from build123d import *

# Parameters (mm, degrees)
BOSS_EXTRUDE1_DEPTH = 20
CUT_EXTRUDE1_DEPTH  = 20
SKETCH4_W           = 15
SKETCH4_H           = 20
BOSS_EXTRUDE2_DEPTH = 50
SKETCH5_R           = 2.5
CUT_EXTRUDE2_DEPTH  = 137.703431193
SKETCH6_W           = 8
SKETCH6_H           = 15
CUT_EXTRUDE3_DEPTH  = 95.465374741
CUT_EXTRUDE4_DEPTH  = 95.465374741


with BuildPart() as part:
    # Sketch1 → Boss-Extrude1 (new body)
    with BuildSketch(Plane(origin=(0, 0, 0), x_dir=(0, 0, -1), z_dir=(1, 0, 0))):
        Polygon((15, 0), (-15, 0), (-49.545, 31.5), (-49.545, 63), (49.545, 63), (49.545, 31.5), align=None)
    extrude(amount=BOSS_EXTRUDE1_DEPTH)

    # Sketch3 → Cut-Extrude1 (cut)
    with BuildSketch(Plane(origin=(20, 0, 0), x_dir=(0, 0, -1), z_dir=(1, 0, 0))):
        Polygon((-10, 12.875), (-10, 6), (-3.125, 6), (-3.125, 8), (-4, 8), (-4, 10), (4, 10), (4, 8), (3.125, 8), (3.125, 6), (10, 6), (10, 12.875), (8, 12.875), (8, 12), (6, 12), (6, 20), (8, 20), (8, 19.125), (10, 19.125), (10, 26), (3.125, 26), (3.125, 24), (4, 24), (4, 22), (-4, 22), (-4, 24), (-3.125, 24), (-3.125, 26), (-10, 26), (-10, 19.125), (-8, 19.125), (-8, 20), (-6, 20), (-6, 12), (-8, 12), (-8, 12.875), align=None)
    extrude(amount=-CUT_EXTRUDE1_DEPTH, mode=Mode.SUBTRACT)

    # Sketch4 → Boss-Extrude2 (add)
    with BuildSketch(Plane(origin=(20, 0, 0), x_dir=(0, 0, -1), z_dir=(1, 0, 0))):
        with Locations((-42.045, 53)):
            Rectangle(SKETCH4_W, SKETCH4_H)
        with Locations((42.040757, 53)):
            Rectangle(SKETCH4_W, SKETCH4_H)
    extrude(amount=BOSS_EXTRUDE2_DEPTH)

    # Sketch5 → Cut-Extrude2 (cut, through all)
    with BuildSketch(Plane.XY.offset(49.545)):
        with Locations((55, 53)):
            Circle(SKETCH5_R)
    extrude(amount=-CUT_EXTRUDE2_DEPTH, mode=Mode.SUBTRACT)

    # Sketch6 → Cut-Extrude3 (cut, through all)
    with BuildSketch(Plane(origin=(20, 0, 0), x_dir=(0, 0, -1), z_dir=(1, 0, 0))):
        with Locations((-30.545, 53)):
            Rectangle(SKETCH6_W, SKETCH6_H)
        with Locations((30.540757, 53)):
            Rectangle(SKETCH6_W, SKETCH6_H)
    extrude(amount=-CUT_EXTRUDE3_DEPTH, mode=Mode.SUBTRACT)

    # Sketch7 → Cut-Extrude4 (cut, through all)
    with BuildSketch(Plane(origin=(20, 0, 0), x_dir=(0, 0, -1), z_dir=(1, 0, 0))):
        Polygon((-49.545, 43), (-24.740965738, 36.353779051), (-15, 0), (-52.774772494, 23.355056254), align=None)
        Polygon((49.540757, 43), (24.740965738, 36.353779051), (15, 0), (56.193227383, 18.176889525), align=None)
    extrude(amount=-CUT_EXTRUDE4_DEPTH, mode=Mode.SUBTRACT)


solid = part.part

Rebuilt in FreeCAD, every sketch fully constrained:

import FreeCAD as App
import Part
import Sketcher
Q = App.Units.Quantity

doc = App.newDocument("Part")
params = doc.addObject("Spreadsheet::Sheet", "Params")
for row, (alias, value) in enumerate([
    ("sketch1_height", "30 mm"),
    ("sketch1_width", "31.5 mm"),
    ("sketch1_height2", "99.09 mm"),
    ("pad1_length", "20 mm"),
    ("sketch2_width", "2 mm"),
    ("sketch2_width2", "8 mm"),
    ("pocket1_length", "20 mm"),
    ("sketch3_width", "20 mm"),
    ("sketch3_height", "15 mm"),
    ("pad2_length", "50 mm"),
    ("sketch4_diameter", "5 mm"),
    ("sketch5_width", "15 mm"),
    ("sketch5_height", "8 mm"),
], start=1):
    params.set(f"A{row}", alias)
    params.set(f"B{row}", "=" + value)
    params.setAlias(f"B{row}", alias)

body = doc.addObject("PartDesign::Body", "Body")

sketch1 = body.newObject("Sketcher::SketchObject", "Sketch")
sketch1.AttachmentSupport = (doc.getObject("YZ_Plane"), [""])
sketch1.MapMode = "FlatFace"
sketch1.addGeometry([
    Part.LineSegment(App.Vector(0, 15, 0), App.Vector(0, -15, 0)),
    Part.LineSegment(App.Vector(0, -15, 0), App.Vector(32, -50, 0)),
    Part.LineSegment(App.Vector(32, -50, 0), App.Vector(63, -50, 0)),
    Part.LineSegment(App.Vector(63, -50, 0), App.Vector(63, 50, 0)),
    Part.LineSegment(App.Vector(63, 50, 0), App.Vector(32, 50, 0)),
    Part.LineSegment(App.Vector(32, 50, 0), App.Vector(0, 15, 0)),
], False)
sketch1.addConstraint([
    Sketcher.Constraint("Coincident", 0, 2, 1, 1),
    Sketcher.Constraint("Coincident", 1, 2, 2, 1),
    Sketcher.Constraint("Coincident", 2, 2, 3, 1),
    Sketcher.Constraint("Coincident", 3, 2, 4, 1),
    Sketcher.Constraint("Coincident", 4, 2, 5, 1),
    Sketcher.Constraint("Coincident", 5, 2, 0, 1),
    Sketcher.Constraint("Vertical", 0),
    Sketcher.Constraint("Horizontal", 2),
    Sketcher.Constraint("Vertical", 3),
    Sketcher.Constraint("Horizontal", 4),
    Sketcher.Constraint("Symmetric", 0, 2, 5, 2, -1, 1),
    Sketcher.Constraint("Symmetric", 1, 2, 4, 2, -1),
    Sketcher.Constraint("DistanceY", 0, 2, 0, 1, Q("30 mm")),
    Sketcher.Constraint("DistanceX", 2, 1, 2, 2, Q("31.5 mm")),
    Sketcher.Constraint("DistanceX", -1, 1, 2, 2, Q("63 mm")),
    Sketcher.Constraint("DistanceY", 3, 1, 3, 2, Q("99.09 mm")),
])
sketch1.setExpression("Constraints[12]", "Params.sketch1_height")
sketch1.setExpression("Constraints[13]", "Params.sketch1_width")
sketch1.setExpression("Constraints[15]", "Params.sketch1_height2")
pad1 = body.newObject("PartDesign::Pad", "Pad")
pad1.Profile = sketch1
pad1.setExpression("Length", "Params.pad1_length")

sketch2 = body.newObject("Sketcher::SketchObject", "Sketch001")
sketch2.AttachmentSupport = (doc.getObject("YZ_Plane"), [""])
sketch2.MapMode = "FlatFace"
sketch2.AttachmentOffset = App.Placement(App.Vector(0, 0, 20), App.Rotation())
sketch2.addGeometry([
    Part.LineSegment(App.Vector(12.9, 10, 0), App.Vector(6, 10, 0)),
    Part.LineSegment(App.Vector(6, 10, 0), App.Vector(6, 3.1, 0)),
    Part.LineSegment(App.Vector(6, 3.1, 0), App.Vector(8, 3.1, 0)),
    Part.LineSegment(App.Vector(8, 3.1, 0), App.Vector(8, 4, 0)),
    Part.LineSegment(App.Vector(8, 4, 0), App.Vector(10, 4, 0)),
    Part.LineSegment(App.Vector(10, 4, 0), App.Vector(10, -4, 0)),
    Part.LineSegment(App.Vector(10, -4, 0), App.Vector(8, -4, 0)),
    Part.LineSegment(App.Vector(8, -4, 0), App.Vector(8, -3.1, 0)),
    Part.LineSegment(App.Vector(8, -3.1, 0), App.Vector(6, -3.1, 0)),
    Part.LineSegment(App.Vector(6, -3.1, 0), App.Vector(6, -10, 0)),
    Part.LineSegment(App.Vector(6, -10, 0), App.Vector(12.9, -10, 0)),
    Part.LineSegment(App.Vector(12.9, -10, 0), App.Vector(12.9, -8, 0)),
    Part.LineSegment(App.Vector(12.9, -8, 0), App.Vector(12, -8, 0)),
    Part.LineSegment(App.Vector(12, -8, 0), App.Vector(12, -6, 0)),
    Part.LineSegment(App.Vector(12, -6, 0), App.Vector(20, -6, 0)),
    Part.LineSegment(App.Vector(20, -6, 0), App.Vector(20, -8, 0)),
    Part.LineSegment(App.Vector(20, -8, 0), App.Vector(19.1, -8, 0)),
    Part.LineSegment(App.Vector(19.1, -8, 0), App.Vector(19.1, -10, 0)),
    Part.LineSegment(App.Vector(19.1, -10, 0), App.Vector(26, -10, 0)),
    Part.LineSegment(App.Vector(26, -10, 0), App.Vector(26, -3.1, 0)),
    Part.LineSegment(App.Vector(26, -3.1, 0), App.Vector(24, -3.1, 0)),
    Part.LineSegment(App.Vector(24, -3.1, 0), App.Vector(24, -4, 0)),
    Part.LineSegment(App.Vector(24, -4, 0), App.Vector(22, -4, 0)),
    Part.LineSegment(App.Vector(22, -4, 0), App.Vector(22, 4, 0)),
    Part.LineSegment(App.Vector(22, 4, 0), App.Vector(24, 4, 0)),
    Part.LineSegment(App.Vector(24, 4, 0), App.Vector(24, 3.1, 0)),
    Part.LineSegment(App.Vector(24, 3.1, 0), App.Vector(26, 3.1, 0)),
    Part.LineSegment(App.Vector(26, 3.1, 0), App.Vector(26, 10, 0)),
    Part.LineSegment(App.Vector(26, 10, 0), App.Vector(19.1, 10, 0)),
    Part.LineSegment(App.Vector(19.1, 10, 0), App.Vector(19.1, 8, 0)),
    Part.LineSegment(App.Vector(19.1, 8, 0), App.Vector(20, 8, 0)),
    Part.LineSegment(App.Vector(20, 8, 0), App.Vector(20, 6, 0)),
    Part.LineSegment(App.Vector(20, 6, 0), App.Vector(12, 6, 0)),
    Part.LineSegment(App.Vector(12, 6, 0), App.Vector(12, 8, 0)),
    Part.LineSegment(App.Vector(12, 8, 0), App.Vector(12.9, 8, 0)),
    Part.LineSegment(App.Vector(12.9, 8, 0), App.Vector(12.9, 10, 0)),
], False)
sketch2.addConstraint([
    Sketcher.Constraint("Coincident", 0, 2, 1, 1),
    Sketcher.Constraint("Coincident", 1, 2, 2, 1),
    Sketcher.Constraint("Coincident", 2, 2, 3, 1),
    Sketcher.Constraint("Coincident", 3, 2, 4, 1),
    Sketcher.Constraint("Coincident", 4, 2, 5, 1),
    Sketcher.Constraint("Coincident", 5, 2, 6, 1),
    Sketcher.Constraint("Coincident", 6, 2, 7, 1),
    Sketcher.Constraint("Coincident", 7, 2, 8, 1),
    Sketcher.Constraint("Coincident", 8, 2, 9, 1),
    Sketcher.Constraint("Coincident", 9, 2, 10, 1),
    Sketcher.Constraint("Coincident", 10, 2, 11, 1),
    Sketcher.Constraint("Coincident", 11, 2, 12, 1),
    Sketcher.Constraint("Coincident", 12, 2, 13, 1),
    Sketcher.Constraint("Coincident", 13, 2, 14, 1),
    Sketcher.Constraint("Coincident", 14, 2, 15, 1),
    Sketcher.Constraint("Coincident", 15, 2, 16, 1),
    Sketcher.Constraint("Coincident", 16, 2, 17, 1),
    Sketcher.Constraint("Coincident", 17, 2, 18, 1),
    Sketcher.Constraint("Coincident", 18, 2, 19, 1),
    Sketcher.Constraint("Coincident", 19, 2, 20, 1),
    Sketcher.Constraint("Coincident", 20, 2, 21, 1),
    Sketcher.Constraint("Coincident", 21, 2, 22, 1),
    Sketcher.Constraint("Coincident", 22, 2, 23, 1),
    Sketcher.Constraint("Coincident", 23, 2, 24, 1),
    Sketcher.Constraint("Coincident", 24, 2, 25, 1),
    Sketcher.Constraint("Coincident", 25, 2, 26, 1),
    Sketcher.Constraint("Coincident", 26, 2, 27, 1),
    Sketcher.Constraint("Coincident", 27, 2, 28, 1),
    Sketcher.Constraint("Coincident", 28, 2, 29, 1),
    Sketcher.Constraint("Coincident", 29, 2, 30, 1),
    Sketcher.Constraint("Coincident", 30, 2, 31, 1),
    Sketcher.Constraint("Coincident", 31, 2, 32, 1),
    Sketcher.Constraint("Coincident", 32, 2, 33, 1),
    Sketcher.Constraint("Coincident", 33, 2, 34, 1),
    Sketcher.Constraint("Coincident", 34, 2, 35, 1),
    Sketcher.Constraint("Coincident", 35, 2, 0, 1),
    Sketcher.Constraint("Horizontal", 0),
    Sketcher.Constraint("Vertical", 1),
    Sketcher.Constraint("Horizontal", 2),
    Sketcher.Constraint("Vertical", 3),
    Sketcher.Constraint("Horizontal", 4),
    Sketcher.Constraint("Vertical", 5),
    Sketcher.Constraint("Horizontal", 6),
    Sketcher.Constraint("Vertical", 7),
    Sketcher.Constraint("Horizontal", 8),
    Sketcher.Constraint("Vertical", 9),
    Sketcher.Constraint("Horizontal", 10),
    Sketcher.Constraint("Vertical", 11),
    Sketcher.Constraint("Horizontal", 12),
    Sketcher.Constraint("Vertical", 13),
    Sketcher.Constraint("Horizontal", 14),
    Sketcher.Constraint("Vertical", 15),
    Sketcher.Constraint("Horizontal", 16),
    Sketcher.Constraint("Vertical", 17),
    Sketcher.Constraint("Horizontal", 18),
    Sketcher.Constraint("Vertical", 19),
    Sketcher.Constraint("Horizontal", 20),
    Sketcher.Constraint("Vertical", 21),
    Sketcher.Constraint("Horizontal", 22),
    Sketcher.Constraint("Vertical", 23),
    Sketcher.Constraint("Horizontal", 24),
    Sketcher.Constraint("Vertical", 25),
    Sketcher.Constraint("Horizontal", 26),
    Sketcher.Constraint("Vertical", 27),
    Sketcher.Constraint("Horizontal", 28),
    Sketcher.Constraint("Vertical", 29),
    Sketcher.Constraint("Horizontal", 30),
    Sketcher.Constraint("Vertical", 31),
    Sketcher.Constraint("Horizontal", 32),
    Sketcher.Constraint("Vertical", 33),
    Sketcher.Constraint("Horizontal", 34),
    Sketcher.Constraint("Vertical", 35),
    Sketcher.Constraint("Symmetric", 3, 2, 6, 2, -1),
    Sketcher.Constraint("Symmetric", 1, 2, 8, 2, -1),
    Sketcher.Constraint("Symmetric", 21, 2, 24, 2, -1),
    Sketcher.Constraint("Symmetric", 19, 2, 26, 2, -1),
    Sketcher.Constraint("Symmetric", 17, 2, 28, 2, -1),
    Sketcher.Constraint("Symmetric", 15, 2, 30, 2, -1),
    Sketcher.Constraint("Symmetric", 13, 2, 32, 2, -1),
    Sketcher.Constraint("Symmetric", 11, 2, 34, 2, -1),
    Sketcher.Constraint("Horizontal", 12, 2, 15, 2),
    Sketcher.Constraint("Horizontal", 10, 2, 17, 2),
    Sketcher.Constraint("Horizontal", 8, 2, 19, 2),
    Sketcher.Constraint("Horizontal", 6, 2, 21, 2),
    Sketcher.Constraint("Horizontal", 0, 2, 27, 2),
    Sketcher.Constraint("Equal", 2, 4),
    Sketcher.Constraint("Equal", 12, 16),
    Sketcher.Constraint("Equal", 10, 18),
    Sketcher.Constraint("Equal", 8, 20),
    Sketcher.Constraint("Equal", 20, 22),
    Sketcher.Constraint("Equal", 28, 1),
    Sketcher.Constraint("Equal", 34, 3),
    Sketcher.Constraint("Equal", 32, 5),
    Sketcher.Constraint("Equal", 26, 11),
    Sketcher.Constraint("Equal", 11, 13),
    Sketcher.Constraint("DistanceX", 2, 1, 2, 2, Q("2 mm")),
    Sketcher.Constraint("DistanceX", 14, 1, 14, 2, Q("8 mm")),
    Sketcher.Constraint("DistanceX", -1, 1, 0, 2, Q("6 mm")),
    Sketcher.Constraint("DistanceY", -1, 1, 0, 2, Q("10 mm")),
    Sketcher.Constraint("DistanceX", 0, 2, 0, 1, Q("6.875 mm")),
])
sketch2.setExpression("Constraints[95]", "Params.sketch2_width")
sketch2.setExpression("Constraints[96]", "Params.sketch2_width2")
pocket1 = body.newObject("PartDesign::Pocket", "Pocket")
pocket1.Profile = sketch2
pocket1.setExpression("Length", "Params.pocket1_length")

sketch3 = body.newObject("Sketcher::SketchObject", "Sketch002")
sketch3.AttachmentSupport = (doc.getObject("YZ_Plane"), [""])
sketch3.MapMode = "FlatFace"
sketch3.AttachmentOffset = App.Placement(App.Vector(0, 0, 20), App.Rotation())
sketch3.addGeometry([
    Part.LineSegment(App.Vector(63, 50, 0), App.Vector(43, 50, 0)),
    Part.LineSegment(App.Vector(43, 50, 0), App.Vector(43, 35, 0)),
    Part.LineSegment(App.Vector(43, 35, 0), App.Vector(63, 35, 0)),
    Part.LineSegment(App.Vector(63, 35, 0), App.Vector(63, 50, 0)),
    Part.LineSegment(App.Vector(63, -35, 0), App.Vector(43, -35, 0)),
    Part.LineSegment(App.Vector(43, -35, 0), App.Vector(43, -50, 0)),
    Part.LineSegment(App.Vector(43, -50, 0), App.Vector(63, -50, 0)),
    Part.LineSegment(App.Vector(63, -50, 0), App.Vector(63, -35, 0)),
], False)
sketch3.addConstraint([
    Sketcher.Constraint("Coincident", 0, 2, 1, 1),
    Sketcher.Constraint("Coincident", 1, 2, 2, 1),
    Sketcher.Constraint("Coincident", 2, 2, 3, 1),
    Sketcher.Constraint("Coincident", 3, 2, 0, 1),
    Sketcher.Constraint("Coincident", 4, 2, 5, 1),
    Sketcher.Constraint("Coincident", 5, 2, 6, 1),
    Sketcher.Constraint("Coincident", 6, 2, 7, 1),
    Sketcher.Constraint("Coincident", 7, 2, 4, 1),
    Sketcher.Constraint("Horizontal", 0),
    Sketcher.Constraint("Vertical", 1),
    Sketcher.Constraint("Horizontal", 2),
    Sketcher.Constraint("Vertical", 3),
    Sketcher.Constraint("Horizontal", 4),
    Sketcher.Constraint("Vertical", 5),
    Sketcher.Constraint("Horizontal", 6),
    Sketcher.Constraint("Vertical", 7),
    Sketcher.Constraint("Vertical", 1, 2, 4, 2),
    Sketcher.Constraint("Vertical", 3, 2, 6, 2),
    Sketcher.Constraint("Equal", 3, 5),
    Sketcher.Constraint("DistanceX", 0, 2, 0, 1, Q("20 mm")),
    Sketcher.Constraint("DistanceY", 1, 2, 1, 1, Q("15 mm")),
    Sketcher.Constraint("DistanceX", -1, 1, 0, 2, Q("43 mm")),
    Sketcher.Constraint("DistanceY", -1, 1, 0, 2, Q("49.545 mm")),
    Sketcher.Constraint("DistanceY", 4, 2, -1, 1, Q("34.540757 mm")),
])
sketch3.setExpression("Constraints[19]", "Params.sketch3_width")
sketch3.setExpression("Constraints[20]", "Params.sketch3_height")
pad2 = body.newObject("PartDesign::Pad", "Pad001")
pad2.Profile = sketch3
pad2.setExpression("Length", "Params.pad2_length")

sketch4 = body.newObject("Sketcher::SketchObject", "Sketch003")
sketch4.AttachmentSupport = (doc.getObject("XY_Plane"), [""])
sketch4.MapMode = "FlatFace"
sketch4.AttachmentOffset = App.Placement(App.Vector(0, 0, 49.545), App.Rotation())
sketch4.addGeometry(Part.Circle(App.Vector(55, 53, 0), App.Vector(0, 0, 1), 2.5), False)
sketch4.addConstraint([
    Sketcher.Constraint("Diameter", 0, Q("5 mm")),
    Sketcher.Constraint("DistanceX", -1, 1, 0, 3, Q("55 mm")),
    Sketcher.Constraint("DistanceY", -1, 1, 0, 3, Q("53 mm")),
])
sketch4.setExpression("Constraints[0]", "Params.sketch4_diameter")
pocket2 = body.newObject("PartDesign::Pocket", "Pocket001")
pocket2.Profile = sketch4
pocket2.Type = "ThroughAll"

sketch5 = body.newObject("Sketcher::SketchObject", "Sketch004")
sketch5.AttachmentSupport = (doc.getObject("YZ_Plane"), [""])
sketch5.MapMode = "FlatFace"
sketch5.AttachmentOffset = App.Placement(App.Vector(0, 0, 20), App.Rotation())
sketch5.addGeometry([
    Part.LineSegment(App.Vector(60, 35, 0), App.Vector(46, 35, 0)),
    Part.LineSegment(App.Vector(46, 35, 0), App.Vector(46, 27, 0)),
    Part.LineSegment(App.Vector(46, 27, 0), App.Vector(60, 27, 0)),
    Part.LineSegment(App.Vector(60, 27, 0), App.Vector(60, 35, 0)),
    Part.LineSegment(App.Vector(60, -27, 0), App.Vector(46, -27, 0)),
    Part.LineSegment(App.Vector(46, -27, 0), App.Vector(46, -35, 0)),
    Part.LineSegment(App.Vector(46, -35, 0), App.Vector(60, -35, 0)),
    Part.LineSegment(App.Vector(60, -35, 0), App.Vector(60, -27, 0)),
], False)
sketch5.addConstraint([
    Sketcher.Constraint("Coincident", 0, 2, 1, 1),
    Sketcher.Constraint("Coincident", 1, 2, 2, 1),
    Sketcher.Constraint("Coincident", 2, 2, 3, 1),
    Sketcher.Constraint("Coincident", 3, 2, 0, 1),
    Sketcher.Constraint("Coincident", 4, 2, 5, 1),
    Sketcher.Constraint("Coincident", 5, 2, 6, 1),
    Sketcher.Constraint("Coincident", 6, 2, 7, 1),
    Sketcher.Constraint("Coincident", 7, 2, 4, 1),
    Sketcher.Constraint("Horizontal", 0),
    Sketcher.Constraint("Vertical", 1),
    Sketcher.Constraint("Horizontal", 2),
    Sketcher.Constraint("Vertical", 3),
    Sketcher.Constraint("Horizontal", 4),
    Sketcher.Constraint("Vertical", 5),
    Sketcher.Constraint("Horizontal", 6),
    Sketcher.Constraint("Vertical", 7),
    Sketcher.Constraint("Vertical", 1, 2, 4, 2),
    Sketcher.Constraint("Vertical", 3, 2, 6, 2),
    Sketcher.Constraint("Equal", 3, 5),
    Sketcher.Constraint("DistanceX", 0, 2, 0, 1, Q("15 mm")),
    Sketcher.Constraint("DistanceY", 1, 2, 1, 1, Q("8 mm")),
    Sketcher.Constraint("DistanceX", -1, 1, 0, 2, Q("45.5 mm")),
    Sketcher.Constraint("DistanceY", -1, 1, 0, 2, Q("34.545 mm")),
    Sketcher.Constraint("DistanceY", 4, 2, -1, 1, Q("26.540757 mm")),
])
sketch5.setExpression("Constraints[19]", "Params.sketch5_width")
sketch5.setExpression("Constraints[20]", "Params.sketch5_height")
pocket3 = body.newObject("PartDesign::Pocket", "Pocket002")
pocket3.Profile = sketch5
pocket3.Type = "ThroughAll"

sketch6 = body.newObject("Sketcher::SketchObject", "Sketch005")
sketch6.AttachmentSupport = (doc.getObject("YZ_Plane"), [""])
sketch6.MapMode = "FlatFace"
sketch6.AttachmentOffset = App.Placement(App.Vector(0, 0, 20), App.Rotation())
sketch6.addGeometry([
    Part.LineSegment(App.Vector(36, 25, 0), App.Vector(43, 50, 0)),
    Part.LineSegment(App.Vector(43, 50, 0), App.Vector(23, 53, 0)),
    Part.LineSegment(App.Vector(23, 53, 0), App.Vector(0, 15, 0)),
    Part.LineSegment(App.Vector(0, 15, 0), App.Vector(36, 25, 0)),
    Part.LineSegment(App.Vector(43, -50, 0), App.Vector(36, -25, 0)),
    Part.LineSegment(App.Vector(36, -25, 0), App.Vector(0, -15, 0)),
    Part.LineSegment(App.Vector(0, -15, 0), App.Vector(18, -56, 0)),
    Part.LineSegment(App.Vector(18, -56, 0), App.Vector(43, -50, 0)),
], False)
sketch6.addConstraint([
    Sketcher.Constraint("Coincident", 0, 2, 1, 1),
    Sketcher.Constraint("Coincident", 1, 2, 2, 1),
    Sketcher.Constraint("Coincident", 2, 2, 3, 1),
    Sketcher.Constraint("Coincident", 3, 2, 0, 1),
    Sketcher.Constraint("Coincident", 4, 2, 5, 1),
    Sketcher.Constraint("Coincident", 5, 2, 6, 1),
    Sketcher.Constraint("Coincident", 6, 2, 7, 1),
    Sketcher.Constraint("Coincident", 7, 2, 4, 1),
    Sketcher.Constraint("Symmetric", 2, 2, 5, 2, -1, 1),
    Sketcher.Constraint("Symmetric", 3, 2, 4, 2, -1),
    Sketcher.Constraint("PointOnObject", 2, 2, -2),
    Sketcher.Constraint("Perpendicular", 0, 5),
    Sketcher.Constraint("Perpendicular", 4, 7),
    Sketcher.Constraint("Vertical", 0, 2, 7, 2),
    Sketcher.Constraint("Angle", 0, Q("75 deg")),
    Sketcher.Constraint("DistanceX", -1, 1, 0, 2, Q("43 mm")),
    Sketcher.Constraint("DistanceY", -1, 1, 2, 2, Q("15 mm")),
    Sketcher.Constraint("DistanceY", -1, 1, 0, 2, Q("49.545 mm")),
    Sketcher.Constraint("Distance", 2, Q("44.411621 mm")),
    Sketcher.Constraint("Distance", 6, Q("45.025341 mm")),
    Sketcher.Constraint("Distance", 7, Q("25.69907 mm")),
    Sketcher.Constraint("DistanceY", 4, 2, 1, 2, Q("77.515738 mm")),
])
pocket4 = body.newObject("PartDesign::Pocket", "Pocket003")
pocket4.Profile = sketch6
pocket4.Type = "ThroughAll"

doc.recompute()
